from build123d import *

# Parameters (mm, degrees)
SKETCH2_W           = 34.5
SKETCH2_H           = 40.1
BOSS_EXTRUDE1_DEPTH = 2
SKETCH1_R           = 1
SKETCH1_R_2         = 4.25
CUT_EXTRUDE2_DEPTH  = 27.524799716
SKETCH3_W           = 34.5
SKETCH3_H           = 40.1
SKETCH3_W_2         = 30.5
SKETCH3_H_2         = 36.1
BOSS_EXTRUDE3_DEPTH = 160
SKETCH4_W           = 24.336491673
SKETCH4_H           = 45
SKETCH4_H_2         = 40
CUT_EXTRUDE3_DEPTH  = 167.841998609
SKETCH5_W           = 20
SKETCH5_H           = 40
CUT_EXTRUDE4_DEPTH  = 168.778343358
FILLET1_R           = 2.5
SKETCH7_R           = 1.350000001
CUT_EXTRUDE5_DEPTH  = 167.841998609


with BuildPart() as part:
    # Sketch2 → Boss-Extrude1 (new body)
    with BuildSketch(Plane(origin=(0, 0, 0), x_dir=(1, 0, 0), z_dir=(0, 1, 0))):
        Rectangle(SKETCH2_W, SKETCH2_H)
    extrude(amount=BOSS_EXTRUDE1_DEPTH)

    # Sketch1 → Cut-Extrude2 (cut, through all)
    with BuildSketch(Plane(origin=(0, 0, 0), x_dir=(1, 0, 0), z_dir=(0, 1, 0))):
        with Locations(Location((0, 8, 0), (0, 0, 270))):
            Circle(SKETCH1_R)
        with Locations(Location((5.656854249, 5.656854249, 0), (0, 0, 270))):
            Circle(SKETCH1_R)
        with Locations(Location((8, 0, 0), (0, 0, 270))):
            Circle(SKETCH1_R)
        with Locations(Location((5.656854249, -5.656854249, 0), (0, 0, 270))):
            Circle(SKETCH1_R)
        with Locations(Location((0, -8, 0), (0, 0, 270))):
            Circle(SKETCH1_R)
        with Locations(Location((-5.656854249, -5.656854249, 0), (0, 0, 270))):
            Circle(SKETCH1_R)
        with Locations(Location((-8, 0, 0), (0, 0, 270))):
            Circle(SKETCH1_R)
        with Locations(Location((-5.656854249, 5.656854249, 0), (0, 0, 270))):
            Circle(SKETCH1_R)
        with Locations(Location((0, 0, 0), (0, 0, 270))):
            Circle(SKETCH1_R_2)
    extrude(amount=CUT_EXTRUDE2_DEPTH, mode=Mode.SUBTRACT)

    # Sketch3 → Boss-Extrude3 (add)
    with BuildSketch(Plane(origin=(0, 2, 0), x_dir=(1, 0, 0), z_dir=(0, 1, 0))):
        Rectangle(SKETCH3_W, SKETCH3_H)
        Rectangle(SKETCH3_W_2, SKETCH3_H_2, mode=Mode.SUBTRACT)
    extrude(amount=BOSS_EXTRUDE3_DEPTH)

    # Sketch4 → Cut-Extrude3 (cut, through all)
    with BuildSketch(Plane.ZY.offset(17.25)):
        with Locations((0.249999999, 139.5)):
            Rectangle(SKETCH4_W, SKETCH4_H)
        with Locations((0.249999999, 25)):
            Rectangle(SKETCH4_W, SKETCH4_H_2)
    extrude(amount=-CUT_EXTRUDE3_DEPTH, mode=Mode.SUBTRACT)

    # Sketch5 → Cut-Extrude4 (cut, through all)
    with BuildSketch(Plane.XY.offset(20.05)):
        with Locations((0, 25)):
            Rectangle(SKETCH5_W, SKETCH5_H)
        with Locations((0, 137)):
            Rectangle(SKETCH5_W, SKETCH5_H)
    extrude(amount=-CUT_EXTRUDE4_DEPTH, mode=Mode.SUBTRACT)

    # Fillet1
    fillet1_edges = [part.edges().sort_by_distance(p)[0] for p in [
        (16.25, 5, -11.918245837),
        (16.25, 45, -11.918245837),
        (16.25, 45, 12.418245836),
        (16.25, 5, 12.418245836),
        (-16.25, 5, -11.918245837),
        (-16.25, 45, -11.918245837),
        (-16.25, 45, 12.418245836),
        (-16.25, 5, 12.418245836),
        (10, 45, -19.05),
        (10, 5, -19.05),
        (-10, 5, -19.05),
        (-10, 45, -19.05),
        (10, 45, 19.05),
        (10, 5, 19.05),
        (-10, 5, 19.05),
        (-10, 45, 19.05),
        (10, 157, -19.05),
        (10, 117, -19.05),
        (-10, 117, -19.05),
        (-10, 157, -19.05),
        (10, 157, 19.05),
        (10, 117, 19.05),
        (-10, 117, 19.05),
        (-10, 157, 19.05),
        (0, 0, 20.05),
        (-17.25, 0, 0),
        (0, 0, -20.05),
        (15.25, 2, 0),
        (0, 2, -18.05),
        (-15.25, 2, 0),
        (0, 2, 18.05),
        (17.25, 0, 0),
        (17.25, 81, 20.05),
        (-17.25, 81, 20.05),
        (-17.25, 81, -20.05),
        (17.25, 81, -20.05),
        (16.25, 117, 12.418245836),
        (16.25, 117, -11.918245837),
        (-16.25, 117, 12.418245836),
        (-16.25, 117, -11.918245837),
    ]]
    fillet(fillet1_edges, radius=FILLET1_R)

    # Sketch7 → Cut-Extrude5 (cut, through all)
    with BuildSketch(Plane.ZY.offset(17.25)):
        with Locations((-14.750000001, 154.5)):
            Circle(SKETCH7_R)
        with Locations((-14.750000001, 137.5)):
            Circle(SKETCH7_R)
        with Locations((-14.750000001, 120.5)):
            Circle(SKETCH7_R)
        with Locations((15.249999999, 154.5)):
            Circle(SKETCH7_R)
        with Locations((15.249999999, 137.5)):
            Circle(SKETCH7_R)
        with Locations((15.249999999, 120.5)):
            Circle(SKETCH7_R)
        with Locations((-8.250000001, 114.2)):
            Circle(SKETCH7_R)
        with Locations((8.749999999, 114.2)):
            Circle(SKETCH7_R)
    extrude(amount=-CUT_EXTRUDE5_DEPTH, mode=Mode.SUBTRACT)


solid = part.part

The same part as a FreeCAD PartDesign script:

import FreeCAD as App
import Part
import Sketcher


def edges_at(feature, points):
    """Names of the edges that pass closest to the given points."""
    edges = feature.Shape.Edges
    near = lambda p: min(range(len(edges)), key=lambda i: edges[i].distToShape(Part.Vertex(*p))[0])
    return sorted({f"Edge{near(p) + 1}" for p in points})


def add_polygon(sketch, points):
    """Adds a closed chain of lines whose ends are joined by coincident constraints."""
    first, n = sketch.GeometryCount, len(points)
    for a, b in zip(points, points[1:] + points[:1]):
        sketch.addGeometry(Part.LineSegment(App.Vector(*a, 0), App.Vector(*b, 0)), False)
    for i in range(n):
        sketch.addConstraint(Sketcher.Constraint("Coincident", first + i, 2, first + (i + 1) % n, 1))

doc = App.newDocument("Part")
params = doc.addObject("Spreadsheet::Sheet", "Params")
for row, (alias, value) in enumerate([
    ("sketch1_width", "34.5 mm"),
    ("sketch1_height", "40.1 mm"),
    ("pad1_length", "2 mm"),
    ("sketch2_diameter", "2 mm"),
    ("sketch2_diameter2", "8.5 mm"),
    ("sketch3_width", "34.5 mm"),
    ("sketch3_width2", "30.5 mm"),
    ("sketch3_height", "40.1 mm"),
    ("sketch3_height2", "36.1 mm"),
    ("pad2_length", "160 mm"),
    ("sketch4_width", "45 mm"),
    ("sketch4_width2", "40 mm"),
    ("sketch5_width", "20 mm"),
    ("sketch5_height", "40 mm"),
    ("fillet_radius", "2.5 mm"),
    ("sketch6_diameter", "2.7 mm"),
], start=1):
    params.set(f"A{row}", alias)
    params.set(f"B{row}", "=" + value)
    params.setAlias(f"B{row}", alias)

body = doc.addObject("PartDesign::Body", "Body")

# Sketch on XZ plane
sketch1 = body.newObject("Sketcher::SketchObject", "Sketch")
sketch1.AttachmentSupport = (doc.getObject("XZ_Plane"), [""])
sketch1.MapMode = "FlatFace"
add_polygon(sketch1, [(-17, -20), (-17, 20), (17, 20), (17, -20)])  # lines 0-3
sketch1.addConstraint(Sketcher.Constraint("Vertical", 0))
sketch1.addConstraint(Sketcher.Constraint("Horizontal", 1))
sketch1.addConstraint(Sketcher.Constraint("Vertical", 2))
sketch1.addConstraint(Sketcher.Constraint("Horizontal", 3))
sketch1.addConstraint(Sketcher.Constraint("Symmetric", 0, 2, 2, 2, -1, 1))
sketch1.addConstraint(Sketcher.Constraint("DistanceX", 1, 1, 1, 2, 34.5))
sketch1.addConstraint(Sketcher.Constraint("DistanceY", 0, 1, 0, 2, 40.1))
sketch1.setExpression("Constraints[9]", "Params.sketch1_width")
sketch1.setExpression("Constraints[10]", "Params.sketch1_height")
pad1 = body.newObject("PartDesign::Pad", "Pad")
pad1.Profile = sketch1
pad1.setExpression("Length", "Params.pad1_length")
pad1.Reversed = True

# Sketch on XZ plane
sketch2 = body.newObject("Sketcher::SketchObject", "Sketch001")
sketch2.AttachmentSupport = (doc.getObject("XZ_Plane"), [""])
sketch2.MapMode = "FlatFace"
sketch2.addGeometry(Part.Circle(App.Vector(0, -8, 0), App.Vector(0, 0, 1), 1), False)
sketch2.addGeometry(Part.Circle(App.Vector(5.7, -5.7, 0), App.Vector(0, 0, 1), 1), False)
sketch2.addGeometry(Part.Circle(App.Vector(8, 0, 0), App.Vector(0, 0, 1), 1), False)
sketch2.addGeometry(Part.Circle(App.Vector(5.7, 5.7, 0), App.Vector(0, 0, 1), 1), False)
sketch2.addGeometry(Part.Circle(App.Vector(0, 8, 0), App.Vector(0, 0, 1), 1), False)
sketch2.addGeometry(Part.Circle(App.Vector(-5.7, 5.7, 0), App.Vector(0, 0, 1), 1), False)
sketch2.addGeometry(Part.Circle(App.Vector(-8, 0, 0), App.Vector(0, 0, 1), 1), False)
sketch2.addGeometry(Part.Circle(App.Vector(-5.7, -5.7, 0), App.Vector(0, 0, 1), 1), False)
sketch2.addGeometry(Part.Circle(App.Vector(0, 0, 0), App.Vector(0, 0, 1), 4.2), False)
sketch2.addConstraint(Sketcher.Constraint("Coincident", 8, 3, -1, 1))
sketch2.addConstraint(Sketcher.Constraint("Equal", 0, 1))
sketch2.addConstraint(Sketcher.Constraint("Equal", 1, 2))
sketch2.addConstraint(Sketcher.Constraint("Equal", 2, 3))
sketch2.addConstraint(Sketcher.Constraint("Equal", 3, 4))
sketch2.addConstraint(Sketcher.Constraint("Equal", 4, 5))
sketch2.addConstraint(Sketcher.Constraint("Equal", 5, 6))
sketch2.addConstraint(Sketcher.Constraint("Equal", 6, 7))
sketch2.addConstraint(Sketcher.Constraint("Symmetric", 0, 3, 4, 3, -1, 1))
sketch2.addConstraint(Sketcher.Constraint("Symmetric", 1, 3, 5, 3, -1, 1))
sketch2.addConstraint(Sketcher.Constraint("Symmetric", 2, 3, 6, 3, -1, 1))
sketch2.addConstraint(Sketcher.Constraint("Symmetric", 3, 3, 7, 3, -1, 1))
sketch2.addConstraint(Sketcher.Constraint("Symmetric", 3, 3, 5, 3, -2))
sketch2.addConstraint(Sketcher.Constraint("PointOnObject", 0, 3, -2))
sketch2.addConstraint(Sketcher.Constraint("PointOnObject", 2, 3, -1))
sketch2.addConstraint(Sketcher.Constraint("Diameter", 0, 2.0))
sketch2.addConstraint(Sketcher.Constraint("Diameter", 8, 8.5))
sketch2.addConstraint(Sketcher.Constraint("DistanceY", 0, 3, -1, 1, 8.0))
sketch2.addConstraint(Sketcher.Constraint("DistanceX", -1, 1, 2, 3, 8.0))
sketch2.addConstraint(Sketcher.Constraint("DistanceY", 1, 3, 3, 3, 11.313708))
sketch2.addConstraint(Sketcher.Constraint("DistanceX", 5, 3, 3, 3, 11.313708))
sketch2.setExpression("Constraints[15]", "Params.sketch2_diameter")
sketch2.setExpression("Constraints[16]", "Params.sketch2_diameter2")
pocket1 = body.newObject("PartDesign::Pocket", "Pocket")
pocket1.Profile = sketch2
pocket1.Type = "ThroughAll"

# Sketch on XZ plane
sketch3 = body.newObject("Sketcher::SketchObject", "Sketch002")
sketch3.AttachmentSupport = (doc.getObject("XZ_Plane"), [""])
sketch3.MapMode = "FlatFace"
sketch3.AttachmentOffset = App.Placement(App.Vector(0, 0, -2), App.Rotation())
add_polygon(sketch3, [(-17, -20), (-17, 20), (17, 20), (17, -20)])  # lines 0-3
add_polygon(sketch3, [(15, 18), (-15, 18), (-15, -18), (15, -18)])  # lines 4-7
sketch3.addConstraint(Sketcher.Constraint("Vertical", 0))
sketch3.addConstraint(Sketcher.Constraint("Horizontal", 1))
sketch3.addConstraint(Sketcher.Constraint("Vertical", 2))
sketch3.addConstraint(Sketcher.Constraint("Horizontal", 3))
sketch3.addConstraint(Sketcher.Constraint("Horizontal", 4))
sketch3.addConstraint(Sketcher.Constraint("Vertical", 5))
sketch3.addConstraint(Sketcher.Constraint("Horizontal", 6))
sketch3.addConstraint(Sketcher.Constraint("Vertical", 7))
sketch3.addConstraint(Sketcher.Constraint("Symmetric", 0, 2, 2, 2, -1, 1))
sketch3.addConstraint(Sketcher.Constraint("Symmetric", 4, 2, 6, 2, -1, 1))
sketch3.addConstraint(Sketcher.Constraint("DistanceX", 1, 1, 1, 2, 34.5))
sketch3.addConstraint(Sketcher.Constraint("DistanceX", 4, 2, 4, 1, 30.5))
sketch3.addConstraint(Sketcher.Constraint("DistanceY", 0, 1, 0, 2, 40.1))
sketch3.addConstraint(Sketcher.Constraint("DistanceY", 5, 2, 5, 1, 36.1))
sketch3.setExpression("Constraints[18]", "Params.sketch3_width")
sketch3.setExpression("Constraints[19]", "Params.sketch3_width2")
sketch3.setExpression("Constraints[20]", "Params.sketch3_height")
sketch3.setExpression("Constraints[21]", "Params.sketch3_height2")
pad2 = body.newObject("PartDesign::Pad", "Pad001")
pad2.Profile = sketch3
pad2.setExpression("Length", "Params.pad2_length")
pad2.Reversed = True

# Sketch on YZ plane
sketch4 = body.newObject("Sketcher::SketchObject", "Sketch003")
sketch4.AttachmentSupport = (doc.getObject("YZ_Plane"), [""])
sketch4.MapMode = "FlatFace"
sketch4.AttachmentOffset = App.Placement(App.Vector(0, 0, -17.25), App.Rotation())
add_polygon(sketch4, [(162, -12), (117, -12), (117, 12), (162, 12)])  # lines 0-3
add_polygon(sketch4, [(45, -12), (5, -12), (5, 12), (45, 12)])  # lines 4-7
sketch4.addConstraint(Sketcher.Constraint("Horizontal", 0))
sketch4.addConstraint(Sketcher.Constraint("Vertical", 1))
sketch4.addConstraint(Sketcher.Constraint("Horizontal", 2))
sketch4.addConstraint(Sketcher.Constraint("Vertical", 3))
sketch4.addConstraint(Sketcher.Constraint("Horizontal", 4))
sketch4.addConstraint(Sketcher.Constraint("Vertical", 5))
sketch4.addConstraint(Sketcher.Constraint("Horizontal", 6))
sketch4.addConstraint(Sketcher.Constraint("Vertical", 7))
sketch4.addConstraint(Sketcher.Constraint("Horizontal", 3, 2, 4, 2))
sketch4.addConstraint(Sketcher.Constraint("Horizontal", 2, 2, 5, 2))
sketch4.addConstraint(Sketcher.Constraint("DistanceX", 0, 2, 0, 1, 45.0))
sketch4.addConstraint(Sketcher.Constraint("DistanceX", 4, 2, 4, 1, 40.0))
sketch4.addConstraint(Sketcher.Constraint("DistanceX", -1, 1, 0, 2, 117.0))
sketch4.addConstraint(Sketcher.Constraint("DistanceX", -1, 1, 4, 2, 5.0))
sketch4.addConstraint(Sketcher.Constraint("DistanceY", 1, 1, 1, 2, 24.336492))
sketch4.addConstraint(Sketcher.Constraint("DistanceY", 0, 2, -1, 1, 11.918246))
sketch4.setExpression("Constraints[18]", "Params.sketch4_width")
sketch4.setExpression("Constraints[19]", "Params.sketch4_width2")
pocket2 = body.newObject("PartDesign::Pocket", "Pocket001")
pocket2.Profile = sketch4
pocket2.Type = "ThroughAll"
pocket2.Reversed = True

# Sketch on XY plane
sketch5 = body.newObject("Sketcher::SketchObject", "Sketch004")
sketch5.AttachmentSupport = (doc.getObject("XY_Plane"), [""])
sketch5.MapMode = "FlatFace"
sketch5.AttachmentOffset = App.Placement(App.Vector(0, 0, 20.05), App.Rotation())
add_polygon(sketch5, [(-10, 45), (-10, 5), (10, 5), (10, 45)])  # lines 0-3
add_polygon(sketch5, [(-10, 157), (-10, 117), (10, 117), (10, 157)])  # lines 4-7
sketch5.addConstraint(Sketcher.Constraint("Vertical", 0))
sketch5.addConstraint(Sketcher.Constraint("Horizontal", 1))
sketch5.addConstraint(Sketcher.Constraint("Vertical", 2))
sketch5.addConstraint(Sketcher.Constraint("Horizontal", 3))
sketch5.addConstraint(Sketcher.Constraint("Vertical", 4))
sketch5.addConstraint(Sketcher.Constraint("Horizontal", 5))
sketch5.addConstraint(Sketcher.Constraint("Vertical", 6))
sketch5.addConstraint(Sketcher.Constraint("Horizontal", 7))
sketch5.addConstraint(Sketcher.Constraint("Vertical", 3, 2, 4, 2))
sketch5.addConstraint(Sketcher.Constraint("Vertical", 2, 2, 5, 2))
sketch5.addConstraint(Sketcher.Constraint("Equal", 2, 4))
sketch5.addConstraint(Sketcher.Constraint("DistanceX", 1, 1, 1, 2, 20.0))
sketch5.addConstraint(Sketcher.Constraint("DistanceY", 0, 2, 0, 1, 40.0))
sketch5.addConstraint(Sketcher.Constraint("DistanceX", 0, 2, -1, 1, 10.0))
sketch5.addConstraint(Sketcher.Constraint("DistanceY", -1, 1, 0, 2, 5.0))
sketch5.addConstraint(Sketcher.Constraint("DistanceY", -1, 1, 4, 2, 117.0))
sketch5.setExpression("Constraints[19]", "Params.sketch5_width")
sketch5.setExpression("Constraints[20]", "Params.sketch5_height")
pocket3 = body.newObject("PartDesign::Pocket", "Pocket002")
pocket3.Profile = sketch5
pocket3.Type = "ThroughAll"
doc.recompute()

fillet = body.newObject("PartDesign::Fillet", "Fillet")
fillet.Base = (pocket3, edges_at(pocket3, [
    (16.25, 5, -11.918),
    (16.25, 45, -11.918),
    (16.25, 45, 12.418),
    (16.25, 5, 12.418),
    (-16.25, 5, -11.918),
    (-16.25, 45, -11.918),
    (-16.25, 45, 12.418),
    (-16.25, 5, 12.418),
    (10, 45, -19.05),
    (10, 5, -19.05),
    (-10, 5, -19.05),
    (-10, 45, -19.05),
    (10, 45, 19.05),
    (10, 5, 19.05),
    (-10, 5, 19.05),
    (-10, 45, 19.05),
    (10, 157, -19.05),
    (10, 117, -19.05),
    (-10, 117, -19.05),
    (-10, 157, -19.05),
    (10, 157, 19.05),
    (10, 117, 19.05),
    (-10, 117, 19.05),
    (-10, 157, 19.05),
    (0, 0, 20.05),
    (-17.25, 0, 0),
    (0, 0, -20.05),
    (15.25, 2, 0),
    (0, 2, -18.05),
    (-15.25, 2, 0),
    (0, 2, 18.05),
    (17.25, 0, 0),
    (17.25, 81, 20.05),
    (-17.25, 81, 20.05),
    (-17.25, 81, -20.05),
    (17.25, 81, -20.05),
    (16.25, 117, 12.418),
    (16.25, 117, -11.918),
    (-16.25, 117, 12.418),
    (-16.25, 117, -11.918),
]))
fillet.setExpression("Radius", "Params.fillet_radius")

# Sketch on YZ plane
sketch6 = body.newObject("Sketcher::SketchObject", "Sketch005")
sketch6.AttachmentSupport = (doc.getObject("YZ_Plane"), [""])
sketch6.MapMode = "FlatFace"
sketch6.AttachmentOffset = App.Placement(App.Vector(0, 0, -17.25), App.Rotation())
sketch6.addGeometry(Part.Circle(App.Vector(154.5, -14.8, 0), App.Vector(0, 0, 1), 1.4), False)
sketch6.addGeometry(Part.Circle(App.Vector(137.5, -14.8, 0), App.Vector(0, 0, 1), 1.4), False)
sketch6.addGeometry(Part.Circle(App.Vector(120.5, -14.8, 0), App.Vector(0, 0, 1), 1.4), False)
sketch6.addGeometry(Part.Circle(App.Vector(154.5, 15.2, 0), App.Vector(0, 0, 1), 1.4), False)
sketch6.addGeometry(Part.Circle(App.Vector(137.5, 15.2, 0), App.Vector(0, 0, 1), 1.4), False)
sketch6.addGeometry(Part.Circle(App.Vector(120.5, 15.2, 0), App.Vector(0, 0, 1), 1.4), False)
sketch6.addGeometry(Part.Circle(App.Vector(114.2, -8.3, 0), App.Vector(0, 0, 1), 1.4), False)
sketch6.addGeometry(Part.Circle(App.Vector(114.2, 8.7, 0), App.Vector(0, 0, 1), 1.4), False)
sketch6.addConstraint(Sketcher.Constraint("Equal", 0, 1))
sketch6.addConstraint(Sketcher.Constraint("Equal", 1, 2))
sketch6.addConstraint(Sketcher.Constraint("Equal", 2, 3))
sketch6.addConstraint(Sketcher.Constraint("Equal", 3, 4))
sketch6.addConstraint(Sketcher.Constraint("Equal", 4, 5))
sketch6.addConstraint(Sketcher.Constraint("Equal", 5, 6))
sketch6.addConstraint(Sketcher.Constraint("Equal", 6, 7))
sketch6.addConstraint(Sketcher.Constraint("Horizontal", 0, 3, 1, 3))
sketch6.addConstraint(Sketcher.Constraint("Horizontal", 1, 3, 2, 3))
sketch6.addConstraint(Sketcher.Constraint("Horizontal", 3, 3, 4, 3))
sketch6.addConstraint(Sketcher.Constraint("Horizontal", 4, 3, 5, 3))
sketch6.addConstraint(Sketcher.Constraint("Vertical", 0, 3, 3, 3))
sketch6.addConstraint(Sketcher.Constraint("Vertical", 1, 3, 4, 3))
sketch6.addConstraint(Sketcher.Constraint("Vertical", 2, 3, 5, 3))
sketch6.addConstraint(Sketcher.Constraint("Vertical", 6, 3, 7, 3))
sketch6.addConstraint(Sketcher.Constraint("Diameter", 0, 2.7))
sketch6.addConstraint(Sketcher.Constraint("DistanceX", 1, 3, 0, 3, 17.0))
sketch6.addConstraint(Sketcher.Constraint("DistanceX", 2, 3, 1, 3, 17.0))
sketch6.addConstraint(Sketcher.Constraint("DistanceY", 0, 3, 3, 3, 30.0))
sketch6.addConstraint(Sketcher.Constraint("DistanceY", 6, 3, 7, 3, 17.0))
sketch6.addConstraint(Sketcher.Constraint("DistanceX", -1, 1, 0, 3, 154.5))
sketch6.addConstraint(Sketcher.Constraint("DistanceX", -1, 1, 6, 3, 114.2))
sketch6.addConstraint(Sketcher.Constraint("DistanceY", 2, 3, 6, 3, 6.5))
sketch6.addConstraint(Sketcher.Constraint("DistanceY", 0, 3, -1, 1, 14.75))
sketch6.setExpression("Constraints[15]", "Params.sketch6_diameter")
pocket4 = body.newObject("PartDesign::Pocket", "Pocket003")
pocket4.Profile = sketch6
pocket4.Type = "ThroughAll"
pocket4.Reversed = True

doc.recompute()
